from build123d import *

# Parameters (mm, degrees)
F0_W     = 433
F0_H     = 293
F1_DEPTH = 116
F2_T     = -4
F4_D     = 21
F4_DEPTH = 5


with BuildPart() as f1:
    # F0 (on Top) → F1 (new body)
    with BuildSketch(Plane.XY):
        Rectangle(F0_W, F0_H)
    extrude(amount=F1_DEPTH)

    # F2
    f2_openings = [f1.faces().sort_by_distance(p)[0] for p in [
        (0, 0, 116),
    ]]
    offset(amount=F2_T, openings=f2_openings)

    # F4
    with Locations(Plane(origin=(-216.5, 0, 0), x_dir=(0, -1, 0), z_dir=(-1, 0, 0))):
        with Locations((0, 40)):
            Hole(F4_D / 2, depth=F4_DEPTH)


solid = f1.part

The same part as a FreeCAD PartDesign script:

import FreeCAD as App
import Part
import Sketcher
Q = App.Units.Quantity


def faces_at(feature, points):
    """Names of the faces that lie closest to the given points."""
    faces = feature.Shape.Faces
    near = lambda p: min(range(len(faces)), key=lambda i: faces[i].distToShape(Part.Vertex(*p))[0])
    return sorted({f"Face{near(p) + 1}" for p in points})


def add_polygon(sketch, points):
    """Adds a closed chain of lines whose ends are joined by coincident constraints."""
    first, n = sketch.GeometryCount, len(points)
    for a, b in zip(points, points[1:] + points[:1]):
        sketch.addGeometry(Part.LineSegment(App.Vector(*a, 0), App.Vector(*b, 0)), False)
    for i in range(n):
        sketch.addConstraint(Sketcher.Constraint("Coincident", first + i, 2, first + (i + 1) % n, 1))

doc = App.newDocument("Part")
body = doc.addObject("PartDesign::Body", "Body")

# Sketch on XY plane
sketch1 = body.newObject("Sketcher::SketchObject", "Sketch")
sketch1.AttachmentSupport = (doc.getObject("XY_Plane"), [""])
sketch1.MapMode = "FlatFace"
add_polygon(sketch1, [(-216.5, 146.5), (-216.5, -146.5), (216.5, -146.5), (216.5, 146.5)])  # lines 0-3
sketch1.addConstraint([
    Sketcher.Constraint("Vertical", 0),
    Sketcher.Constraint("Horizontal", 1),
    Sketcher.Constraint("Vertical", 2),
    Sketcher.Constraint("Horizontal", 3),
    Sketcher.Constraint("Symmetric", 0, 2, 2, 2, -1, 1),
    Sketcher.Constraint("DistanceX", 1, 1, 1, 2, Q("433 mm")),
    Sketcher.Constraint("DistanceY", 0, 2, 0, 1, Q("293 mm")),
])
pad1 = body.newObject("PartDesign::Pad", "Pad")
pad1.Profile = sketch1
pad1.Length = 116
doc.recompute()

thickness = body.newObject("PartDesign::Thickness", "Thickness")
thickness.Base = (pad1, faces_at(pad1, [(0, 0, 116)]))
thickness.Value = 4
thickness.Reversed = True
thickness.Join = "Arc"

# Sketch on YZ plane
sketch2 = body.newObject("Sketcher::SketchObject", "Sketch001")
sketch2.AttachmentSupport = (doc.getObject("YZ_Plane"), [""])
sketch2.MapMode = "FlatFace"
sketch2.AttachmentOffset = App.Placement(App.Vector(0, 0, -216.5), App.Rotation())
sketch2.addGeometry(Part.Circle(App.Vector(0, 40, 0), App.Vector(0, 0, 1), 10.5), False)
sketch2.addConstraint([
    Sketcher.Constraint("PointOnObject", 0, 3, -2),
    Sketcher.Constraint("Diameter", 0, Q("21 mm")),
    Sketcher.Constraint("DistanceY", -1, 1, 0, 3, Q("40 mm")),
])
doc.recompute()
hole = body.newObject("PartDesign::Hole", "Hole")
hole.Profile = sketch2
hole.ThreadType = "None"
hole.Diameter = 21
hole.DepthType = "Dimension"
hole.Depth = 5
hole.DrillPoint = "Flat"
hole.Reversed = True

doc.recompute()
